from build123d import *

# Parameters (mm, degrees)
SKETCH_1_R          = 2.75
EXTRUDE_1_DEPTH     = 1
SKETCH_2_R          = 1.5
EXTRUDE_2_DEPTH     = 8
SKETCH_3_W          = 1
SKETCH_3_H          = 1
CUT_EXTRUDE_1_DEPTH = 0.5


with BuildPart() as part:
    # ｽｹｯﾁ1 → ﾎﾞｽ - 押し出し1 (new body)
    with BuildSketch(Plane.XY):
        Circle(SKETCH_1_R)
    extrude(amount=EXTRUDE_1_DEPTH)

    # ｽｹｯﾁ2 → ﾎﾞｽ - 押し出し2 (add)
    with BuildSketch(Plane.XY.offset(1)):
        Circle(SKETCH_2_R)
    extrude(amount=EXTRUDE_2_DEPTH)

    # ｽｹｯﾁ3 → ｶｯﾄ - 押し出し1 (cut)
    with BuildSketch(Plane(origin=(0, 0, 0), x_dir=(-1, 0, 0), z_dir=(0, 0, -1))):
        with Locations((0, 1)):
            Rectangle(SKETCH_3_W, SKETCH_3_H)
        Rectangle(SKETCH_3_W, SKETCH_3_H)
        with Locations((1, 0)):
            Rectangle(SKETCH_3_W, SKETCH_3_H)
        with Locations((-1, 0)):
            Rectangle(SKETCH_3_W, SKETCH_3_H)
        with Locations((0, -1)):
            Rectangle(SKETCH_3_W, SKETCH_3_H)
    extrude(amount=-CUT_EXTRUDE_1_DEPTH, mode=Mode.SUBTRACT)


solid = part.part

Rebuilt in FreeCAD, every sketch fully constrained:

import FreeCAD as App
import Part
import Sketcher
from FreeCAD import Vector

doc = App.newDocument("Part")
body = doc.addObject("PartDesign::Body", "Body")

# Sketch on XY plane
sketch1 = body.newObject("Sketcher::SketchObject", "Sketch")
sketch1.AttachmentSupport = (doc.getObject("XY_Plane"), [""])
sketch1.MapMode = "FlatFace"
sketch1.addGeometry(Part.Circle(Vector(0, 0, 0), Vector(0, 0, 1), 2.75), False)
sketch1.addConstraint([
    Sketcher.Constraint("Coincident", 0, 3, -1, 1),
    Sketcher.Constraint("Diameter", 0, 5.5),
])
pad1 = body.newObject("PartDesign::Pad", "Pad")
pad1.Profile = sketch1
pad1.Length = 1

# Sketch on XY plane
sketch2 = body.newObject("Sketcher::SketchObject", "Sketch001")
sketch2.AttachmentSupport = (doc.getObject("XY_Plane"), [""])
sketch2.MapMode = "FlatFace"
sketch2.AttachmentOffset = App.Placement(Vector(0, 0, 1), App.Rotation())
sketch2.addGeometry(Part.Circle(Vector(0, 0, 0), Vector(0, 0, 1), 1.5), False)
sketch2.addConstraint([
    Sketcher.Constraint("Coincident", 0, 3, -1, 1),
    Sketcher.Constraint("Diameter", 0, 3.0),
])
pad2 = body.newObject("PartDesign::Pad", "Pad001")
pad2.Profile = sketch2
pad2.Length = 8

# Sketch on XY plane
sketch3 = body.newObject("Sketcher::SketchObject", "Sketch002")
sketch3.AttachmentSupport = (doc.getObject("XY_Plane"), [""])
sketch3.MapMode = "FlatFace"
sketch3.addGeometry([
    Part.LineSegment(Vector(0.5, 1.5, 0), Vector(0.5, 0.5, 0)),  # 0
    Part.LineSegment(Vector(0.5, 0.5, 0), Vector(1.5, 0.5, 0)),  # 1
    Part.LineSegment(Vector(1.5, 0.5, 0), Vector(1.5, -0.5, 0)),  # 2
    Part.LineSegment(Vector(1.5, -0.5, 0), Vector(0.5, -0.5, 0)),  # 3
    Part.LineSegment(Vector(0.5, -0.5, 0), Vector(0.5, -1.5, 0)),  # 4
    Part.LineSegment(Vector(0.5, -1.5, 0), Vector(-0.5, -1.5, 0)),  # 5
    Part.LineSegment(Vector(-0.5, -1.5, 0), Vector(-0.5, -0.5, 0)),  # 6
    Part.LineSegment(Vector(-0.5, -0.5, 0), Vector(-1.5, -0.5, 0)),  # 7
    Part.LineSegment(Vector(-1.5, -0.5, 0), Vector(-1.5, 0.5, 0)),  # 8
    Part.LineSegment(Vector(-1.5, 0.5, 0), Vector(-0.5, 0.5, 0)),  # 9
    Part.LineSegment(Vector(-0.5, 0.5, 0), Vector(-0.5, 1.5, 0)),  # 10
    Part.LineSegment(Vector(-0.5, 1.5, 0), Vector(0.5, 1.5, 0)),  # 11
], False)
sketch3.addConstraint([
    Sketcher.Constraint("Coincident", 0, 2, 1, 1),
    Sketcher.Constraint("Coincident", 1, 2, 2, 1),
    Sketcher.Constraint("Coincident", 2, 2, 3, 1),
    Sketcher.Constraint("Coincident", 3, 2, 4, 1),
    Sketcher.Constraint("Coincident", 4, 2, 5, 1),
    Sketcher.Constraint("Coincident", 5, 2, 6, 1),
    Sketcher.Constraint("Coincident", 6, 2, 7, 1),
    Sketcher.Constraint("Coincident", 7, 2, 8, 1),
    Sketcher.Constraint("Coincident", 8, 2, 9, 1),
    Sketcher.Constraint("Coincident", 9, 2, 10, 1),
    Sketcher.Constraint("Coincident", 10, 2, 11, 1),
    Sketcher.Constraint("Coincident", 11, 2, 0, 1),
    Sketcher.Constraint("Vertical", 0),
    Sketcher.Constraint("Horizontal", 1),
    Sketcher.Constraint("Vertical", 2),
    Sketcher.Constraint("Horizontal", 3),
    Sketcher.Constraint("Vertical", 4),
    Sketcher.Constraint("Horizontal", 5),
    Sketcher.Constraint("Vertical", 6),
    Sketcher.Constraint("Horizontal", 7),
    Sketcher.Constraint("Vertical", 8),
    Sketcher.Constraint("Horizontal", 9),
    Sketcher.Constraint("Vertical", 10),
    Sketcher.Constraint("Horizontal", 11),
    Sketcher.Constraint("Symmetric", 0, 2, 6, 2, -1, 1),
    Sketcher.Constraint("Symmetric", 2, 2, 8, 2, -1, 1),
    Sketcher.Constraint("Symmetric", 4, 2, 10, 2, -1, 1),
    Sketcher.Constraint("Symmetric", 3, 2, 6, 2, -2),
    Sketcher.Constraint("Equal", 3, 5),
    Sketcher.Constraint("Equal", 11, 0),
    Sketcher.Constraint("Equal", 0, 2),
    Sketcher.Constraint("DistanceX", 1, 1, 1, 2, 1.0),
])
pocket1 = body.newObject("PartDesign::Pocket", "Pocket")
pocket1.Profile = sketch3
pocket1.Length = 0.5
pocket1.Reversed = True

doc.recompute()
